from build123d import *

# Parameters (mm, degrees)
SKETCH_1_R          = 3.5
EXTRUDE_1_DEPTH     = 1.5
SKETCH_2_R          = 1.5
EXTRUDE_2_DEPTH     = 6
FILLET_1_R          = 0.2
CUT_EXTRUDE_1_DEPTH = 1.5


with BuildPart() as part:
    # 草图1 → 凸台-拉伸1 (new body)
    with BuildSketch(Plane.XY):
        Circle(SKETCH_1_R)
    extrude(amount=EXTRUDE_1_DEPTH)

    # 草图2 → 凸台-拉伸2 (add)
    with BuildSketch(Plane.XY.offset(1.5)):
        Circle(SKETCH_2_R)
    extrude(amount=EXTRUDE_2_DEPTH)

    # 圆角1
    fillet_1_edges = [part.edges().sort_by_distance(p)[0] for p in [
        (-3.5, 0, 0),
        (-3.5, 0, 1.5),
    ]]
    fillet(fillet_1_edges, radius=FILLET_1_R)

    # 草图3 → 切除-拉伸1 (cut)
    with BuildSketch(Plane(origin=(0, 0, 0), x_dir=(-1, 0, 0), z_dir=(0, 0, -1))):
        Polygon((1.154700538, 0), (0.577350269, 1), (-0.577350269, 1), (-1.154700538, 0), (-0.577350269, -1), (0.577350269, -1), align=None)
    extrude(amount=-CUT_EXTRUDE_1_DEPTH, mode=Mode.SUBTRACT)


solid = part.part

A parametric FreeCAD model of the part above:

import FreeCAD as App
import Part
import Sketcher
from FreeCAD import Vector
Q = App.Units.Quantity


def edges_at(feature, points):
    """Names of the edges that pass closest to the given points."""
    edges = feature.Shape.Edges
    near = lambda p: min(range(len(edges)), key=lambda i: edges[i].distToShape(Part.Vertex(*p))[0])
    return sorted({f"Edge{near(p) + 1}" for p in points})

doc = App.newDocument("Part")
params = doc.addObject("Spreadsheet::Sheet", "Params")
for row, (alias, value) in enumerate([
    ("sketch1_diameter", "7 mm"),
    ("pad1_length", "1.5 mm"),
    ("sketch2_diameter", "3 mm"),
    ("pad2_length", "6 mm"),
    ("fillet_radius", "0.2 mm"),
    ("pocket1_length", "1.5 mm"),
], start=1):
    params.set(f"A{row}", alias)
    params.set(f"B{row}", "=" + value)
    params.setAlias(f"B{row}", alias)

body = doc.addObject("PartDesign::Body", "Body")

sketch1 = doc.addObject("Sketcher::SketchObject", "Sketch")
body.addObject(sketch1)
sketch1.AttachmentSupport = (doc.XY_Plane, [""])
sketch1.MapMode = "FlatFace"
sketch1.addGeometry(Part.Circle(Vector(0, 0, 0), Vector(0, 0, 1), 3.5), False)
sketch1.addConstraint(Sketcher.Constraint("Coincident", 0, 3, -1, 1))
sketch1.addConstraint(Sketcher.Constraint("Diameter", 0, Q("7 mm")))
sketch1.setExpression("Constraints[1]", "Params.sketch1_diameter")
pad1 = doc.addObject("PartDesign::Pad", "Pad")
body.addObject(pad1)
pad1.Profile = sketch1
pad1.setExpression("Length", "Params.pad1_length")

sketch2 = doc.addObject("Sketcher::SketchObject", "Sketch001")
body.addObject(sketch2)
sketch2.AttachmentSupport = (doc.XY_Plane, [""])
sketch2.MapMode = "FlatFace"
sketch2.AttachmentOffset = App.Placement(Vector(0, 0, 1.5), App.Rotation())
sketch2.addGeometry(Part.Circle(Vector(0, 0, 0), Vector(0, 0, 1), 1.5), False)
sketch2.addConstraint(Sketcher.Constraint("Coincident", 0, 3, -1, 1))
sketch2.addConstraint(Sketcher.Constraint("Diameter", 0, Q("3 mm")))
sketch2.setExpression("Constraints[1]", "Params.sketch2_diameter")
pad2 = doc.addObject("PartDesign::Pad", "Pad001")
body.addObject(pad2)
pad2.Profile = sketch2
pad2.setExpression("Length", "Params.pad2_length")
doc.recompute()

fillet = doc.addObject("PartDesign::Fillet", "Fillet")
body.addObject(fillet)
fillet.Base = (pad2, edges_at(pad2, [(-3.5, 0, 0), (-3.5, 0, 1.5)]))
fillet.setExpression("Radius", "Params.fillet_radius")

sketch3 = doc.addObject("Sketcher::SketchObject", "Sketch002")
body.addObject(sketch3)
sketch3.AttachmentSupport = (doc.XY_Plane, [""])
sketch3.MapMode = "FlatFace"
sketch3.addGeometry(Part.LineSegment(Vector(-1.154701, 0, 0), Vector(-0.57735, 1, 0)), False)
sketch3.addGeometry(Part.LineSegment(Vector(-0.57735, 1, 0), Vector(0.57735, 1, 0)), False)
sketch3.addGeometry(Part.LineSegment(Vector(0.57735, 1, 0), Vector(1.154701, 0, 0)), False)
sketch3.addGeometry(Part.LineSegment(Vector(1.154701, 0, 0), Vector(0.57735, -1, 0)), False)
sketch3.addGeometry(Part.LineSegment(Vector(0.57735, -1, 0), Vector(-0.57735, -1, 0)), False)
sketch3.addGeometry(Part.LineSegment(Vector(-0.57735, -1, 0), Vector(-1.154701, 0, 0)), False)
sketch3.addConstraint(Sketcher.Constraint("Coincident", 0, 2, 1, 1))
sketch3.addConstraint(Sketcher.Constraint("Coincident", 1, 2, 2, 1))
sketch3.addConstraint(Sketcher.Constraint("Coincident", 2, 2, 3, 1))
sketch3.addConstraint(Sketcher.Constraint("Coincident", 3, 2, 4, 1))
sketch3.addConstraint(Sketcher.Constraint("Coincident", 4, 2, 5, 1))
sketch3.addConstraint(Sketcher.Constraint("Coincident", 5, 2, 0, 1))
sketch3.addConstraint(Sketcher.Constraint("Horizontal", 1))
sketch3.addConstraint(Sketcher.Constraint("Horizontal", 4))
sketch3.addConstraint(Sketcher.Constraint("Symmetric", 0, 2, 3, 2, -1, 1))
sketch3.addConstraint(Sketcher.Constraint("Symmetric", 2, 2, 5, 2, -1, 1))
sketch3.addConstraint(Sketcher.Constraint("PointOnObject", 2, 2, -1))
sketch3.addConstraint(Sketcher.Constraint("Parallel", 2, 5))
sketch3.addConstraint(Sketcher.Constraint("Vertical", 1, 2, 3, 2))
sketch3.addConstraint(Sketcher.Constraint("Angle", 0, Q("60 deg")))
sketch3.addConstraint(Sketcher.Constraint("DistanceY", -1, 1, 0, 2, Q("1 mm")))
sketch3.addConstraint(Sketcher.Constraint("DistanceX", 1, 1, 1, 2, Q("1.154701 mm")))
pocket1 = doc.addObject("PartDesign::Pocket", "Pocket")
body.addObject(pocket1)
pocket1.Profile = sketch3
pocket1.setExpression("Length", "Params.pocket1_length")
pocket1.Reversed = True

doc.recompute()
